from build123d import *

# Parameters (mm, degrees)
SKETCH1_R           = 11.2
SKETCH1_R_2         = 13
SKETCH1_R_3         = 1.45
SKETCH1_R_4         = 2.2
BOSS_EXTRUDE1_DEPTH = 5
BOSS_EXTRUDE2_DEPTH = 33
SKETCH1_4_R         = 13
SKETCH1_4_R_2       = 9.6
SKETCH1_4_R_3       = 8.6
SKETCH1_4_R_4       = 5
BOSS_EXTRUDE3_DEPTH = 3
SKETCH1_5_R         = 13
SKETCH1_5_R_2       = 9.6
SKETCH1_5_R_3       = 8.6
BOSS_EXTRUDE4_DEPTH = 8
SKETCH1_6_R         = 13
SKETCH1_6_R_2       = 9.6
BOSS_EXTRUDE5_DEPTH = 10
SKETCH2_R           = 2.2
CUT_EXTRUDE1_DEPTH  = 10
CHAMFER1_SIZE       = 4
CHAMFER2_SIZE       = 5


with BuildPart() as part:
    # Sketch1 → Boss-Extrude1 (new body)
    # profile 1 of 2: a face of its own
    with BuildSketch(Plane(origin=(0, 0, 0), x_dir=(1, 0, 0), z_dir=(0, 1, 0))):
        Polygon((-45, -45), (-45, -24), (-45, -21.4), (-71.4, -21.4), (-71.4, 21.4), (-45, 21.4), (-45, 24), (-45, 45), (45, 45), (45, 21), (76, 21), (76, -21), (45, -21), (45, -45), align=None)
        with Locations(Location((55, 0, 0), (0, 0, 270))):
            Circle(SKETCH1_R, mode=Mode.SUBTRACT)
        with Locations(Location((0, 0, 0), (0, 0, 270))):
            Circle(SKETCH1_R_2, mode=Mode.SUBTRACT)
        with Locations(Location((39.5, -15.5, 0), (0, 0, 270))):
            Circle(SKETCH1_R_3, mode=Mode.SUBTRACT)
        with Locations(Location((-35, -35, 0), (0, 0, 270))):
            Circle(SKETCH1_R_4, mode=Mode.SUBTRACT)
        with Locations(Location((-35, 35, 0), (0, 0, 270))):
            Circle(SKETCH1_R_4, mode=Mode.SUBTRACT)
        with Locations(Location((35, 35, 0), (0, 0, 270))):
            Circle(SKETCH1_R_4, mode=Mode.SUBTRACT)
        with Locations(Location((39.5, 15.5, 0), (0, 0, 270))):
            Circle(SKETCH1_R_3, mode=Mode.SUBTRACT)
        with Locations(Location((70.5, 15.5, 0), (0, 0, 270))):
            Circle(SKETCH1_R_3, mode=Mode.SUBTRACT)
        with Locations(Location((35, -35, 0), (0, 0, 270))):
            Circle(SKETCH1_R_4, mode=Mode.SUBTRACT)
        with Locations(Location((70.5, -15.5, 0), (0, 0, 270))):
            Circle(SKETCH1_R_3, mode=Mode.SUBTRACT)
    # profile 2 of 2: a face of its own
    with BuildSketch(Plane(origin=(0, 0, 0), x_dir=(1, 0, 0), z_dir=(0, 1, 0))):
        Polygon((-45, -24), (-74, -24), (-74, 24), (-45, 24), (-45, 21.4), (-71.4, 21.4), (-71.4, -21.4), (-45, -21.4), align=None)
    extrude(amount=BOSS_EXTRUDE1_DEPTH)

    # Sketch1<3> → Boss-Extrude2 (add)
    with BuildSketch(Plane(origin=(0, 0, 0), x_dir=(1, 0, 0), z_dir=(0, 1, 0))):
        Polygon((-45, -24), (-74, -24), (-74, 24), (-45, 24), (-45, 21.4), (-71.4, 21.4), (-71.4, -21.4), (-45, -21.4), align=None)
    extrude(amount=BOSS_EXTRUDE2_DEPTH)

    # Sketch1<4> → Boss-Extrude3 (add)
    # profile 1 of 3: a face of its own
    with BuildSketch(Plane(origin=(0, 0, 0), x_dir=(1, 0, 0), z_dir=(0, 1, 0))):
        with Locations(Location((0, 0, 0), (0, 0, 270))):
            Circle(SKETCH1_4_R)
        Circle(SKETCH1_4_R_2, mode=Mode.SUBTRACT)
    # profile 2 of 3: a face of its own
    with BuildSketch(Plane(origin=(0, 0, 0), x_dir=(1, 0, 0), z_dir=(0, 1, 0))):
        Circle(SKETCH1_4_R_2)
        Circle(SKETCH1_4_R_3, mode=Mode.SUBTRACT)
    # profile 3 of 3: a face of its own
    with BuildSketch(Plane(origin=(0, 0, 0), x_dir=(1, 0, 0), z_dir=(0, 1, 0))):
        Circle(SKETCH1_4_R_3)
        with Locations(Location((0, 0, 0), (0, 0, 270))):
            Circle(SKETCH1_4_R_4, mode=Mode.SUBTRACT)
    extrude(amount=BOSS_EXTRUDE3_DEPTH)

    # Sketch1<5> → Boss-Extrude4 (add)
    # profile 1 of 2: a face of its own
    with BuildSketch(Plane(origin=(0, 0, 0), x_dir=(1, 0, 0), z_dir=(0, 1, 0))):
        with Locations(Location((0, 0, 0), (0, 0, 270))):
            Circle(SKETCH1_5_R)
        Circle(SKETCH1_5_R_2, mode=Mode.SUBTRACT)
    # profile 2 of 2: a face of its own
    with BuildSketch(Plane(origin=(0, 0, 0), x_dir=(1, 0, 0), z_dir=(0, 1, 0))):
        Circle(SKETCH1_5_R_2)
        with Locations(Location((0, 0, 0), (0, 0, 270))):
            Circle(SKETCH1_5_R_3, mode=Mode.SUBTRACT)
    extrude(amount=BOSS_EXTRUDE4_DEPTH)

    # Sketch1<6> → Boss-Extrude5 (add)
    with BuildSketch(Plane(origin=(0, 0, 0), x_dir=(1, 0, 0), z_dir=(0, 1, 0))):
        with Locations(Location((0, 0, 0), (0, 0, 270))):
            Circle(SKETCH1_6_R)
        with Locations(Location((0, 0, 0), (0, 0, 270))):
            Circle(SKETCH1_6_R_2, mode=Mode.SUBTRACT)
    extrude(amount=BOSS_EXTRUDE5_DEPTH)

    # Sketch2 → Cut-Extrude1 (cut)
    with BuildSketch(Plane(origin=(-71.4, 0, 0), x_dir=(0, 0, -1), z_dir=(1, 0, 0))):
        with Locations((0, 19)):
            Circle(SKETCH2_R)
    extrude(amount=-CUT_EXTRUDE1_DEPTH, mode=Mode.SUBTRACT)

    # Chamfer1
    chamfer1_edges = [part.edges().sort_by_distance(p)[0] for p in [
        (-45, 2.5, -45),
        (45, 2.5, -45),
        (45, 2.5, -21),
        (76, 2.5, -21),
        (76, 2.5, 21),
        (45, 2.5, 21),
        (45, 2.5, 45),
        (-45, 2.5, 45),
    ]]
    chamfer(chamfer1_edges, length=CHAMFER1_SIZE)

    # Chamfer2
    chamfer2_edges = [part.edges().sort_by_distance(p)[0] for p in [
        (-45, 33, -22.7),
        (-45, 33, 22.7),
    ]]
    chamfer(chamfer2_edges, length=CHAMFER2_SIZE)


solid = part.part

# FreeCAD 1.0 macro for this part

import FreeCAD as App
import Part
import Sketcher
from FreeCAD import Vector


def edges_at(feature, points):
    """Names of the edges that pass closest to the given points."""
    edges = feature.Shape.Edges
    near = lambda p: min(range(len(edges)), key=lambda i: edges[i].distToShape(Part.Vertex(*p))[0])
    return sorted({f"Edge{near(p) + 1}" for p in points})


def add_polygon(sketch, points):
    """Adds a closed chain of lines whose ends are joined by coincident constraints."""
    first, n = sketch.GeometryCount, len(points)
    for a, b in zip(points, points[1:] + points[:1]):
        sketch.addGeometry(Part.LineSegment(App.Vector(*a, 0), App.Vector(*b, 0)), False)
    for i in range(n):
        sketch.addConstraint(Sketcher.Constraint("Coincident", first + i, 2, first + (i + 1) % n, 1))

doc = App.newDocument("Part")
body = doc.addObject("PartDesign::Body", "Body")

sketch1 = body.newObject("Sketcher::SketchObject", "Sketch")
sketch1.AttachmentSupport = (doc.getObject("XZ_Plane"), [""])
sketch1.MapMode = "FlatFace"
add_polygon(sketch1, [(-45, 24), (-45, 45), (45, 45), (45, 21), (76, 21), (76, -21), (45, -21), (45, -45), (-45, -45), (-45, -24), (-74, -24), (-74, 24)])
sketch1.addGeometry(Part.Circle(Vector(35, 35, 0), Vector(0, 0, 1), 2.2), False)
sketch1.addGeometry(Part.Circle(Vector(70.5, 15.5, 0), Vector(0, 0, 1), 1.4), False)
sketch1.addGeometry(Part.Circle(Vector(39.5, 15.5, 0), Vector(0, 0, 1), 1.4), False)
sketch1.addGeometry(Part.Circle(Vector(-35, 35, 0), Vector(0, 0, 1), 2.2), False)
sketch1.addGeometry(Part.Circle(Vector(55, 0, 0), Vector(0, 0, 1), 11.2), False)
sketch1.addGeometry(Part.Circle(Vector(70.5, -15.5, 0), Vector(0, 0, 1), 1.4), False)
sketch1.addGeometry(Part.Circle(Vector(39.5, -15.5, 0), Vector(0, 0, 1), 1.4), False)
sketch1.addGeometry(Part.Circle(Vector(35, -35, 0), Vector(0, 0, 1), 2.2), False)
sketch1.addGeometry(Part.Circle(Vector(0, 0, 0), Vector(0, 0, 1), 13), False)
sketch1.addGeometry(Part.Circle(Vector(-35, -35, 0), Vector(0, 0, 1), 2.2), False)
sketch1.addConstraint([
    Sketcher.Constraint("Vertical", 0),
    Sketcher.Constraint("Horizontal", 1),
    Sketcher.Constraint("Vertical", 2),
    Sketcher.Constraint("Horizontal", 3),
    Sketcher.Constraint("Vertical", 4),
    Sketcher.Constraint("Horizontal", 5),
    Sketcher.Constraint("Vertical", 6),
    Sketcher.Constraint("Horizontal", 7),
    Sketcher.Constraint("Vertical", 8),
    Sketcher.Constraint("Horizontal", 9),
    Sketcher.Constraint("Vertical", 10),
    Sketcher.Constraint("Horizontal", 11),
    Sketcher.Constraint("Coincident", 20, 3, -1, 1),
    Sketcher.Constraint("Equal", 13, 14),
    Sketcher.Constraint("Equal", 12, 15),
    Sketcher.Constraint("Equal", 14, 17),
    Sketcher.Constraint("Equal", 17, 18),
    Sketcher.Constraint("Equal", 15, 19),
    Sketcher.Constraint("Equal", 19, 21),
    Sketcher.Constraint("Symmetric", 15, 3, 19, 3, -1, 1),
    Sketcher.Constraint("Symmetric", 12, 3, 21, 3, -1, 1),
    Sketcher.Constraint("Symmetric", 0, 2, 6, 2, -1, 1),
    Sketcher.Constraint("Symmetric", 12, 3, 15, 3, -2),
    Sketcher.Constraint("Symmetric", 13, 3, 17, 3, -1),
    Sketcher.Constraint("Symmetric", 14, 3, 18, 3, -1),
    Sketcher.Constraint("Symmetric", 2, 2, 5, 2, -1),
    Sketcher.Constraint("Symmetric", 8, 2, 11, 2, -1),
    Sketcher.Constraint("PointOnObject", 16, 3, -1),
    Sketcher.Constraint("Horizontal", 13, 3, 14, 3),
    Sketcher.Constraint("Diameter", 20, 26.0),
    Sketcher.Constraint("Diameter", 12, 4.4),
    Sketcher.Constraint("Diameter", 13, 2.9),
    Sketcher.Constraint("Diameter", 16, 22.4),
    Sketcher.Constraint("DistanceX", 1, 1, 1, 2, 90.0),
    Sketcher.Constraint("DistanceX", 3, 1, 3, 2, 31.0),
    Sketcher.Constraint("DistanceX", 9, 2, 9, 1, 29.0),
    Sketcher.Constraint("DistanceY", 0, 1, 0, 2, 21.0),
    Sketcher.Constraint("DistanceY", 2, 2, 2, 1, 24.0),
    Sketcher.Constraint("DistanceY", 4, 2, 4, 1, 42.0),
    Sketcher.Constraint("DistanceX", -1, 1, 12, 3, 35.0),
    Sketcher.Constraint("DistanceY", -1, 1, 12, 3, 35.0),
    Sketcher.Constraint("DistanceX", -1, 1, 16, 3, 55.0),
    Sketcher.Constraint("DistanceX", 14, 3, 13, 3, 31.0),
    Sketcher.Constraint("DistanceY", 17, 3, 13, 3, 31.0),
    Sketcher.Constraint("DistanceX", -1, 1, 13, 3, 70.5),
])
pad1 = body.newObject("PartDesign::Pad", "Pad")
pad1.Profile = sketch1
pad1.Length = 5
pad1.Reversed = True

sketch2 = body.newObject("Sketcher::SketchObject", "Sketch001")
sketch2.AttachmentSupport = (doc.getObject("XZ_Plane"), [""])
sketch2.MapMode = "FlatFace"
add_polygon(sketch2, [(-74, 24), (-45, 24), (-45, 21.4), (-71.4, 21.4), (-71.4, -21.4), (-45, -21.4), (-45, -24), (-74, -24)])
sketch2.addConstraint([
    Sketcher.Constraint("Horizontal", 0),
    Sketcher.Constraint("Vertical", 1),
    Sketcher.Constraint("Horizontal", 2),
    Sketcher.Constraint("Vertical", 3),
    Sketcher.Constraint("Horizontal", 4),
    Sketcher.Constraint("Vertical", 5),
    Sketcher.Constraint("Horizontal", 6),
    Sketcher.Constraint("Vertical", 7),
    Sketcher.Constraint("Symmetric", 1, 2, 4, 2, -1),
    Sketcher.Constraint("Equal", 1, 5),
    Sketcher.Constraint("DistanceX", 0, 1, 0, 2, 29.0),
    Sketcher.Constraint("DistanceY", 7, 1, 7, 2, 48.0),
    Sketcher.Constraint("DistanceX", 2, 2, 2, 1, 26.4),
    Sketcher.Constraint("DistanceY", 1, 2, 1, 1, 2.6),
    Sketcher.Constraint("DistanceX", 0, 2, -1, 1, 45.0),
])
pad2 = body.newObject("PartDesign::Pad", "Pad001")
pad2.Profile = sketch2
pad2.Length = 33
pad2.Reversed = True

sketch3 = body.newObject("Sketcher::SketchObject", "Sketch002")
sketch3.AttachmentSupport = (doc.getObject("XZ_Plane"), [""])
sketch3.MapMode = "FlatFace"
sketch3.addGeometry([
    Part.Circle(Vector(0, 0, 0), Vector(0, 0, 1), 13),
    Part.Circle(Vector(0, 0, 0), Vector(0, 0, 1), 5),
], False)
sketch3.addConstraint([
    Sketcher.Constraint("Coincident", 0, 3, -1, 1),
    Sketcher.Constraint("Coincident", 1, 3, -1, 1),
    Sketcher.Constraint("Diameter", 0, 26.0),
    Sketcher.Constraint("Diameter", 1, 10.0),
])
pad3 = body.newObject("PartDesign::Pad", "Pad002")
pad3.Profile = sketch3
pad3.Length = 3
pad3.Reversed = True

sketch4 = body.newObject("Sketcher::SketchObject", "Sketch003")
sketch4.AttachmentSupport = (doc.getObject("XZ_Plane"), [""])
sketch4.MapMode = "FlatFace"
sketch4.addGeometry([
    Part.Circle(Vector(0, 0, 0), Vector(0, 0, 1), 13),
    Part.Circle(Vector(0, 0, 0), Vector(0, 0, 1), 9),
], False)
sketch4.addConstraint([
    Sketcher.Constraint("Coincident", 0, 3, -1, 1),
    Sketcher.Constraint("Coincident", 1, 3, -1, 1),
    Sketcher.Constraint("Diameter", 0, 26.0),
    Sketcher.Constraint("Diameter", 1, 17.2),
])
pad4 = body.newObject("PartDesign::Pad", "Pad003")
pad4.Profile = sketch4
pad4.Length = 8
pad4.Reversed = True

sketch5 = body.newObject("Sketcher::SketchObject", "Sketch004")
sketch5.AttachmentSupport = (doc.getObject("XZ_Plane"), [""])
sketch5.MapMode = "FlatFace"
sketch5.addGeometry([
    Part.Circle(Vector(0, 0, 0), Vector(0, 0, 1), 13),
    Part.Circle(Vector(0, 0, 0), Vector(0, 0, 1), 10),
], False)
sketch5.addConstraint([
    Sketcher.Constraint("Coincident", 0, 3, -1, 1),
    Sketcher.Constraint("Coincident", 1, 3, -1, 1),
    Sketcher.Constraint("Diameter", 0, 26.0),
    Sketcher.Constraint("Diameter", 1, 19.2),
])
pad5 = body.newObject("PartDesign::Pad", "Pad004")
pad5.Profile = sketch5
pad5.Length = 10
pad5.Reversed = True

sketch6 = body.newObject("Sketcher::SketchObject", "Sketch005")
sketch6.AttachmentSupport = (doc.getObject("YZ_Plane"), [""])
sketch6.MapMode = "FlatFace"
sketch6.AttachmentOffset = App.Placement(Vector(0, 0, -71.4), App.Rotation())
sketch6.addGeometry(Part.Circle(Vector(19, 0, 0), Vector(0, 0, 1), 2.2), False)
sketch6.addConstraint([
    Sketcher.Constraint("PointOnObject", 0, 3, -1),
    Sketcher.Constraint("Diameter", 0, 4.4),
    Sketcher.Constraint("DistanceX", -1, 1, 0, 3, 19.0),
])
pocket1 = body.newObject("PartDesign::Pocket", "Pocket")
pocket1.Profile = sketch6
pocket1.Length = 10
doc.recompute()

chamfer = body.newObject("PartDesign::Chamfer", "Chamfer")
chamfer.Base = (pocket1, edges_at(pocket1, [
    (-45, 2.5, -45),
    (45, 2.5, -45),
    (45, 2.5, -21),
    (76, 2.5, -21),
    (76, 2.5, 21),
    (45, 2.5, 21),
    (45, 2.5, 45),
    (-45, 2.5, 45),
]))
chamfer.Size = 4
doc.recompute()

chamfer2 = body.newObject("PartDesign::Chamfer", "Chamfer001")
chamfer2.Base = (chamfer, edges_at(chamfer, [(-45, 33, -22.7), (-45, 33, 22.7)]))
chamfer2.Size = 5

doc.recompute()
